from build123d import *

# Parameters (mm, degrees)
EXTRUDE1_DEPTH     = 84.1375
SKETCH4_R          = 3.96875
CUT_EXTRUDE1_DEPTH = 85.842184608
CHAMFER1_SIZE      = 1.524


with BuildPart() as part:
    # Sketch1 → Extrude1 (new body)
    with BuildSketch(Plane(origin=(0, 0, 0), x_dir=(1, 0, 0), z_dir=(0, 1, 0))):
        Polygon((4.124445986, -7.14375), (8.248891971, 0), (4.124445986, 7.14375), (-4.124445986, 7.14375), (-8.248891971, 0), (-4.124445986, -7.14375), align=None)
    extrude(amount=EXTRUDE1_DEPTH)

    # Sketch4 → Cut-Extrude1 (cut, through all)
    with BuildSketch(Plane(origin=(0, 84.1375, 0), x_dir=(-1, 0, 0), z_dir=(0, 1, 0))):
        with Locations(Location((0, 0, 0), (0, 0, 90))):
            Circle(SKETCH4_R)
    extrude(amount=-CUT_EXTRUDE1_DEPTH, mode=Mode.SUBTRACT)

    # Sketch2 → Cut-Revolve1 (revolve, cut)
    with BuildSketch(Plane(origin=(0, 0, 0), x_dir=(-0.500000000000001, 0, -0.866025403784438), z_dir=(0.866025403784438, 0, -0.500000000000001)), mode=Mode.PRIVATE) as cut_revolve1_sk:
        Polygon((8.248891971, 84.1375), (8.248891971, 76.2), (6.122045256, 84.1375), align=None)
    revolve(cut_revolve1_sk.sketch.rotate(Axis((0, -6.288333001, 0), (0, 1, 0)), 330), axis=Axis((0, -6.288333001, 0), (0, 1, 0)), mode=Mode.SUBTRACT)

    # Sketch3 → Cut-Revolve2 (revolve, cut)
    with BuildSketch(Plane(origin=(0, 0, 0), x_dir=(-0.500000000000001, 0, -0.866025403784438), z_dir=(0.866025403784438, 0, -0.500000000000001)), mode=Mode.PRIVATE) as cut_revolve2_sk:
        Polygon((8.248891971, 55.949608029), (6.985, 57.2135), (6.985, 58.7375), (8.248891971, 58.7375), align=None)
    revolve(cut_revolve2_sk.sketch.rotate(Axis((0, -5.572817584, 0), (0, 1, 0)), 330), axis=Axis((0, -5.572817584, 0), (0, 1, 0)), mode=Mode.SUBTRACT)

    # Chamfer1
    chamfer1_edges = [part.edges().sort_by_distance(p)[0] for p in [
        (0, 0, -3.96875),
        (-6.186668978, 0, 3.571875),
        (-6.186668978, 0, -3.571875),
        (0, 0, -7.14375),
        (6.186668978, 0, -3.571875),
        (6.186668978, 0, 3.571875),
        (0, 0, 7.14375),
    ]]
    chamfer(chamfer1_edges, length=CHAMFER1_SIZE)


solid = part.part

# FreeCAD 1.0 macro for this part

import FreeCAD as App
import Part
import Sketcher

V = App.Vector
Q = App.Units.Quantity


def edges_at(feature, points):
    """Names of the edges that pass closest to the given points."""
    edges = feature.Shape.Edges
    near = lambda p: min(range(len(edges)), key=lambda i: edges[i].distToShape(Part.Vertex(*p))[0])
    return sorted({f"Edge{near(p) + 1}" for p in points})


def add_polygon(sketch, points):
    """Adds a closed chain of lines whose ends are joined by coincident constraints."""
    first, n = sketch.GeometryCount, len(points)
    for a, b in zip(points, points[1:] + points[:1]):
        sketch.addGeometry(Part.LineSegment(App.Vector(*a, 0), App.Vector(*b, 0)), False)
    for i in range(n):
        sketch.addConstraint(Sketcher.Constraint("Coincident", first + i, 2, first + (i + 1) % n, 1))

doc = App.newDocument("Part")
params = doc.addObject("Spreadsheet::Sheet", "Params")
for row, (alias, value) in enumerate([
    ("pad1_length", "3.3125 in"),
    ("sketch2_diameter", "0.3125 in"),
    ("sketch3_height", "0.3125 in"),
    ("groove_angle", "360 deg"),
    ("sketch4_height", "0.06 in"),
    ("groove2_angle", "360 deg"),
    ("chamfer_size", "0.06 in"),
], start=1):
    params.set(f"A{row}", alias)
    params.set(f"B{row}", "=" + value)
    params.setAlias(f"B{row}", alias)

body = doc.addObject("PartDesign::Body", "Body")

# Sketch on XZ plane
sketch1 = body.newObject("Sketcher::SketchObject", "Sketch")
sketch1.AttachmentSupport = (doc.getObject("XZ_Plane"), [""])
sketch1.MapMode = "FlatFace"
add_polygon(sketch1, [(4, 7), (8, 0), (4, -7), (-4, -7), (-8, 0), (-4, 7)])  # lines 0-5
sketch1.addConstraint([
    Sketcher.Constraint("Horizontal", 2),
    Sketcher.Constraint("Horizontal", 5),
    Sketcher.Constraint("Symmetric", 0, 2, 3, 2, -1, 1),
    Sketcher.Constraint("Symmetric", 1, 2, 4, 2, -1, 1),
    Sketcher.Constraint("PointOnObject", 0, 2, -1),
    Sketcher.Constraint("Parallel", 0, 3),
    Sketcher.Constraint("Vertical", 2, 2, 4, 2),
    Sketcher.Constraint("Angle", 0, Q("-60 deg")),
    Sketcher.Constraint("DistanceY", 1, 2, -1, 1, Q("0.28125 in")),
    Sketcher.Constraint("DistanceX", 2, 2, 2, 1, Q("8.248892 mm")),
])
pad1 = body.newObject("PartDesign::Pad", "Pad")
pad1.Profile = sketch1
pad1.setExpression("Length", "Params.pad1_length")
pad1.Reversed = True

# Sketch on XZ plane
sketch2 = body.newObject("Sketcher::SketchObject", "Sketch001")
sketch2.AttachmentSupport = (doc.getObject("XZ_Plane"), [""])
sketch2.MapMode = "FlatFace"
sketch2.AttachmentOffset = App.Placement(V(0, 0, -3.3125 * 25.4), App.Rotation())
sketch2.addGeometry(Part.Circle(V(0, 0, 0), V(0, 0, 1), 4), False)
sketch2.addConstraint([
    Sketcher.Constraint("Coincident", 0, 3, -1, 1),
    Sketcher.Constraint("Diameter", 0, Q("0.3125 in")),
])
sketch2.setExpression("Constraints[1]", "Params.sketch2_diameter")
pocket1 = body.newObject("PartDesign::Pocket", "Pocket")
pocket1.Profile = sketch2
pocket1.Type = "ThroughAll"
pocket1.Reversed = True

# Sketch on an angled plane
sketch3 = body.newObject("Sketcher::SketchObject", "Sketch002")
sketch3.Placement = App.Placement(V(0, 0, 0), App.Rotation(V(-0.5, 0, -0.866025404), V(0, 1, 0), V(0.866025404, 0, -0.5), "ZXY"))
add_polygon(sketch3, [(8.2, 76.2), (8.2, 84.1), (6.1, 84.1)])  # lines 0-2
sketch3.addConstraint([
    Sketcher.Constraint("Vertical", 0),
    Sketcher.Constraint("Horizontal", 1),
    Sketcher.Constraint("DistanceY", -1, 1, 2, 2, Q("3 in")),
    Sketcher.Constraint("Angle", 2, Q("-75 deg")),
    Sketcher.Constraint("DistanceY", 0, 1, 0, 2, Q("0.3125 in")),
    Sketcher.Constraint("DistanceX", -1, 1, 0, 2, Q("8.248892 mm")),
])
sketch3.setExpression("Constraints[7]", "Params.sketch3_height")
groove = body.newObject("PartDesign::Groove", "Groove")
groove.Profile = sketch3
groove.ReferenceAxis = (sketch3, ["V_Axis"])
groove.setExpression("Angle", "Params.groove_angle")

# Sketch on an angled plane
sketch4 = body.newObject("Sketcher::SketchObject", "Sketch003")
sketch4.Placement = App.Placement(V(0, 0, 0), App.Rotation(V(-0.5, 0, -0.866025404), V(0, 1, 0), V(0.866025404, 0, -0.5), "ZXY"))
add_polygon(sketch4, [(7, 57.2), (8.2, 55.9), (8.2, 58.7), (7, 58.7)])  # lines 0-3
sketch4.addConstraint([
    Sketcher.Constraint("Vertical", 1),
    Sketcher.Constraint("Horizontal", 2),
    Sketcher.Constraint("Vertical", 3),
    Sketcher.Constraint("Angle", 0, Q("-45 deg")),
    Sketcher.Constraint("DistanceY", 3, 2, 3, 1, Q("0.06 in")),
    Sketcher.Constraint("DistanceY", -1, 1, 1, 2, Q("2.3125 in")),
    Sketcher.Constraint("DistanceX", -1, 1, 2, 2, Q("0.275 in")),
    Sketcher.Constraint("DistanceX", 2, 2, 2, 1, Q("1.263892 mm")),
])
sketch4.setExpression("Constraints[8]", "Params.sketch4_height")
groove2 = body.newObject("PartDesign::Groove", "Groove001")
groove2.Profile = sketch4
groove2.ReferenceAxis = (sketch4, ["V_Axis"])
groove2.setExpression("Angle", "Params.groove2_angle")
doc.recompute()

chamfer = body.newObject("PartDesign::Chamfer", "Chamfer")
chamfer.Base = (groove2, edges_at(groove2, [
    (0, 0, -3.969),
    (-6.187, 0, 3.572),
    (-6.187, 0, -3.572),
    (0, 0, -7.144),
    (6.187, 0, -3.572),
    (6.187, 0, 3.572),
    (0, 0, 7.144),
]))
chamfer.setExpression("Size", "Params.chamfer_size")

doc.recompute()
